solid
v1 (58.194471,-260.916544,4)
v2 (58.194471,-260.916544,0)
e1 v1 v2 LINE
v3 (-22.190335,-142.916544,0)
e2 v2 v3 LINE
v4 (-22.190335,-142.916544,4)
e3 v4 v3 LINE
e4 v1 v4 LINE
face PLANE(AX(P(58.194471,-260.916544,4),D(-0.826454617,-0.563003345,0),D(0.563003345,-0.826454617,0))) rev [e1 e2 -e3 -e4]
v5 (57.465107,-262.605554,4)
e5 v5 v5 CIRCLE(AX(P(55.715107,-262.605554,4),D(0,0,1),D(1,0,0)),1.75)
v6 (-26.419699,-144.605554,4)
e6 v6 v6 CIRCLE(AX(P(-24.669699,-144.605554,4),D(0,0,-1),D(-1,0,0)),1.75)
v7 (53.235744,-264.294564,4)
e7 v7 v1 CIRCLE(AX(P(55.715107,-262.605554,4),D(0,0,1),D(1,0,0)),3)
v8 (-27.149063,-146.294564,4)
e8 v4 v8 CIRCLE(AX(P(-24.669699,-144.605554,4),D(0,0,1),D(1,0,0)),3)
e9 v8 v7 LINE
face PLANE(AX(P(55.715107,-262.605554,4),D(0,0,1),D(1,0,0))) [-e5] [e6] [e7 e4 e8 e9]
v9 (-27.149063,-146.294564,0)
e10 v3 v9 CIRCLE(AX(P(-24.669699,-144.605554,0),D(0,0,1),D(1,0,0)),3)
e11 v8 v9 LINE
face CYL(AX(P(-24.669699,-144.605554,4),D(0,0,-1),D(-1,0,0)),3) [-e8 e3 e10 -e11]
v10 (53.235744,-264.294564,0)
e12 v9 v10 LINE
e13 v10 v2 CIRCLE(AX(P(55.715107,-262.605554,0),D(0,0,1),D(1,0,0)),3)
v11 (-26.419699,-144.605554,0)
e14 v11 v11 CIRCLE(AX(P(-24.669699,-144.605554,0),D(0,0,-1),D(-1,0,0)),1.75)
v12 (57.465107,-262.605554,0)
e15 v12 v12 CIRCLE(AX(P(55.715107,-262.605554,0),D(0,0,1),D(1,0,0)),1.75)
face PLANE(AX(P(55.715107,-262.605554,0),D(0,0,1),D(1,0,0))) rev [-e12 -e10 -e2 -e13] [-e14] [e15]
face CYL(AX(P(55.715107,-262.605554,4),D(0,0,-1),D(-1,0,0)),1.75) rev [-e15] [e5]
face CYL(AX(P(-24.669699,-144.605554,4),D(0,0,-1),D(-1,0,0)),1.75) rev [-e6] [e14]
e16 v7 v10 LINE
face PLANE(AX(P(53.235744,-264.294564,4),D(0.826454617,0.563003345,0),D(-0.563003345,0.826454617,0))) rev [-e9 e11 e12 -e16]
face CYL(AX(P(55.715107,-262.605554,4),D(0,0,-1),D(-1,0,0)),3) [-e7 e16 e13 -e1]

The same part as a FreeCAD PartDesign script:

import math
import FreeCAD as App
import Part
import Sketcher
Q = App.Units.Quantity

doc = App.newDocument("Part")
body = doc.addObject("PartDesign::Body", "Body")

# Sketch on XY plane
sketch1 = body.newObject("Sketcher::SketchObject", "Sketch")
sketch1.AttachmentSupport = (doc.getObject("XY_Plane"), [""])
sketch1.MapMode = "FlatFace"
sketch1.addGeometry(Part.LineSegment(App.Vector(-27.1, -146.3, 0), App.Vector(53.2, -264.3, 0)), False)
sketch1.addGeometry(Part.ArcOfCircle(Part.Circle(App.Vector(55.7, -262.6, 0), App.Vector(0, 0, 1), 3), math.radians(-146), math.radians(34)), False)
sketch1.addGeometry(Part.LineSegment(App.Vector(58.2, -260.9, 0), App.Vector(-22.2, -142.9, 0)), False)
sketch1.addGeometry(Part.ArcOfCircle(Part.Circle(App.Vector(-24.7, -144.6, 0), App.Vector(0, 0, 1), 3), math.radians(34), math.radians(214)), False)
sketch1.addGeometry(Part.Circle(App.Vector(55.7, -262.6, 0), App.Vector(0, 0, 1), 1.8), False)
sketch1.addGeometry(Part.Circle(App.Vector(-24.7, -144.6, 0), App.Vector(0, 0, 1), 1.6), False)
sketch1.addConstraint(Sketcher.Constraint("Tangent", 0, 2, 1, 1))
sketch1.addConstraint(Sketcher.Constraint("Tangent", 1, 2, 2, 1))
sketch1.addConstraint(Sketcher.Constraint("Tangent", 2, 2, 3, 1))
sketch1.addConstraint(Sketcher.Constraint("Tangent", 3, 2, 0, 1))
sketch1.addConstraint(Sketcher.Constraint("Coincident", 4, 3, 1, 3))
sketch1.addConstraint(Sketcher.Constraint("Coincident", 5, 3, 3, 3))
sketch1.addConstraint(Sketcher.Constraint("Equal", 1, 3))
sketch1.addConstraint(Sketcher.Constraint("Radius", 1, Q("3 mm")))
sketch1.addConstraint(Sketcher.Constraint("Diameter", 4, Q("3.5 mm")))
sketch1.addConstraint(Sketcher.Constraint("Diameter", 5, Q("3.2 mm")))
sketch1.addConstraint(Sketcher.Constraint("DistanceY", 1, 3, 3, 3, Q("118 mm")))
sketch1.addConstraint(Sketcher.Constraint("DistanceX", 3, 3, -1, 1, Q("24.669699 mm")))
sketch1.addConstraint(Sketcher.Constraint("Distance", 0, Q("142.77856 mm")))
sketch1.addConstraint(Sketcher.Constraint("DistanceY", 1, 3, -1, 1, Q("262.605554 mm")))
pad1 = body.newObject("PartDesign::Pad", "Pad")
pad1.Profile = sketch1
pad1.Length = 4

# Sketch on XY plane
sketch2 = body.newObject("Sketcher::SketchObject", "Sketch001")
sketch2.AttachmentSupport = (doc.getObject("XY_Plane"), [""])
sketch2.MapMode = "FlatFace"
sketch2.addGeometry(Part.Circle(App.Vector(-24.7, -144.6, 0), App.Vector(0, 0, 1), 1.8), False)
sketch2.addConstraint(Sketcher.Constraint("Diameter", 0, Q("3.5 mm")))
sketch2.addConstraint(Sketcher.Constraint("DistanceX", 0, 3, -1, 1, Q("24.669699 mm")))
sketch2.addConstraint(Sketcher.Constraint("DistanceY", 0, 3, -1, 1, Q("144.605554 mm")))
pocket1 = body.newObject("PartDesign::Pocket", "Pocket")
pocket1.Profile = sketch2
pocket1.Type = "ThroughAll"
pocket1.Reversed = True

doc.recompute()
